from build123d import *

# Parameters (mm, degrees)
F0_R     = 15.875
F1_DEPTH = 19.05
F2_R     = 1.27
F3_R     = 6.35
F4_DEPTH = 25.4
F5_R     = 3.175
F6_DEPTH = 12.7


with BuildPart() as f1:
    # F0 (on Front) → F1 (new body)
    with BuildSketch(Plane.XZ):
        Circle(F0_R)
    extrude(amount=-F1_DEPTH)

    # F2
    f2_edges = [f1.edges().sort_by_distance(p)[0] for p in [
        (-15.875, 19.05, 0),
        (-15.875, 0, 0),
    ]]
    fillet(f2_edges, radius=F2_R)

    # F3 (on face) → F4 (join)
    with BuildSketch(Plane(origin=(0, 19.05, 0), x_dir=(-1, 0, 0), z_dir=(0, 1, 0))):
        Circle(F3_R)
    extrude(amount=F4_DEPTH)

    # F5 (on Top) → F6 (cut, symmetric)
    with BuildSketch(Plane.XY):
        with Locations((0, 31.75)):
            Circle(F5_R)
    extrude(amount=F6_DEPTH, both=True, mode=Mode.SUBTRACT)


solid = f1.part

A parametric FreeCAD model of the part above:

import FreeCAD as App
import Part
import Sketcher
from FreeCAD import Vector
Q = App.Units.Quantity


def edges_at(feature, points):
    """Names of the edges that pass closest to the given points."""
    edges = feature.Shape.Edges
    near = lambda p: min(range(len(edges)), key=lambda i: edges[i].distToShape(Part.Vertex(*p))[0])
    return sorted({f"Edge{near(p) + 1}" for p in points})

doc = App.newDocument("Part")
body = doc.addObject("PartDesign::Body", "Body")

# Sketch on XZ plane
sketch1 = body.newObject("Sketcher::SketchObject", "Sketch")
sketch1.AttachmentSupport = (doc.getObject("XZ_Plane"), [""])
sketch1.MapMode = "FlatFace"
sketch1.addGeometry(Part.Circle(Vector(0, 0, 0), Vector(0, 0, 1), 15.875), False)
sketch1.addConstraint([
    Sketcher.Constraint("Coincident", 0, 3, -1, 1),
    Sketcher.Constraint("Diameter", 0, Q("1.25 in")),
])
pad1 = body.newObject("PartDesign::Pad", "Pad")
pad1.Profile = sketch1
pad1.Length = Q("0.75 in")
pad1.Reversed = True
doc.recompute()

fillet = body.newObject("PartDesign::Fillet", "Fillet")
fillet.Base = (pad1, edges_at(pad1, [(-15.875, 19.05, 0), (-15.875, 0, 0)]))
fillet.Radius = Q("0.05 in")

# Sketch on XZ plane
sketch2 = body.newObject("Sketcher::SketchObject", "Sketch001")
sketch2.AttachmentSupport = (doc.getObject("XZ_Plane"), [""])
sketch2.MapMode = "FlatFace"
sketch2.AttachmentOffset = App.Placement(Vector(0, 0, -0.75 * 25.4), App.Rotation())
sketch2.addGeometry(Part.Circle(Vector(0, 0, 0), Vector(0, 0, 1), 6.35), False)
sketch2.addConstraint([
    Sketcher.Constraint("Coincident", 0, 3, -1, 1),
    Sketcher.Constraint("Diameter", 0, Q("0.5 in")),
])
pad2 = body.newObject("PartDesign::Pad", "Pad001")
pad2.Profile = sketch2
pad2.Length = Q("1 in")
pad2.Reversed = True

# Sketch on XY plane
sketch3 = body.newObject("Sketcher::SketchObject", "Sketch002")
sketch3.AttachmentSupport = (doc.getObject("XY_Plane"), [""])
sketch3.MapMode = "FlatFace"
sketch3.addGeometry(Part.Circle(Vector(0, 31.75, 0), Vector(0, 0, 1), 3.175), False)
sketch3.addConstraint([
    Sketcher.Constraint("PointOnObject", 0, 3, -2),
    Sketcher.Constraint("Diameter", 0, Q("0.25 in")),
    Sketcher.Constraint("DistanceY", -1, 1, 0, 3, Q("1.25 in")),
])
pocket1 = body.newObject("PartDesign::Pocket", "Pocket")
pocket1.Profile = sketch3
pocket1.Length = Q("1 in")
pocket1.Midplane = True

doc.recompute()
